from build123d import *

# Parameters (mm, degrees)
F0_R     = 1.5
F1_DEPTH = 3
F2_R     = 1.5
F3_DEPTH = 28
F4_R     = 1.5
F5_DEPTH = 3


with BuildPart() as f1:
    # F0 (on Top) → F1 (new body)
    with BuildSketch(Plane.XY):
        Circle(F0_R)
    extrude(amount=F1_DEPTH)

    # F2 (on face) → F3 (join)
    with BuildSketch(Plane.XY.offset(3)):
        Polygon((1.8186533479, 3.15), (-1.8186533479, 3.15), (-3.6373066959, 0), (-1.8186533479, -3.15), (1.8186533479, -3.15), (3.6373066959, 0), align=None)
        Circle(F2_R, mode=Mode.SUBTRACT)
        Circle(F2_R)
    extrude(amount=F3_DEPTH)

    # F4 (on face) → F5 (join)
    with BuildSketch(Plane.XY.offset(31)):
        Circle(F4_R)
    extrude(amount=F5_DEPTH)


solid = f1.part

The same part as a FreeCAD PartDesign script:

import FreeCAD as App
import Part
import Sketcher
Q = App.Units.Quantity


def add_polygon(sketch, points):
    """Adds a closed chain of lines whose ends are joined by coincident constraints."""
    first, n = sketch.GeometryCount, len(points)
    for a, b in zip(points, points[1:] + points[:1]):
        sketch.addGeometry(Part.LineSegment(App.Vector(*a, 0), App.Vector(*b, 0)), False)
    for i in range(n):
        sketch.addConstraint(Sketcher.Constraint("Coincident", first + i, 2, first + (i + 1) % n, 1))

doc = App.newDocument("Part")
body = doc.addObject("PartDesign::Body", "Body")

# Sketch on XY plane
sketch1 = body.newObject("Sketcher::SketchObject", "Sketch")
sketch1.AttachmentSupport = (doc.getObject("XY_Plane"), [""])
sketch1.MapMode = "FlatFace"
sketch1.addGeometry(Part.Circle(App.Vector(0, 0, 0), App.Vector(0, 0, 1), 1.5), False)
sketch1.addConstraint([
    Sketcher.Constraint("Coincident", 0, 3, -1, 1),
    Sketcher.Constraint("Diameter", 0, Q("3 mm")),
])
pad1 = body.newObject("PartDesign::Pad", "Pad")
pad1.Profile = sketch1
pad1.Length = 3

# Sketch on XY plane
sketch2 = body.newObject("Sketcher::SketchObject", "Sketch001")
sketch2.AttachmentSupport = (doc.getObject("XY_Plane"), [""])
sketch2.MapMode = "FlatFace"
sketch2.AttachmentOffset = App.Placement(App.Vector(0, 0, 3), App.Rotation())
add_polygon(sketch2, [(1.8, 3.1), (-1.8, 3.1), (-3.6, 0), (-1.8, -3.1), (1.8, -3.1), (3.6, 0)])  # lines 0-5
sketch2.addConstraint([
    Sketcher.Constraint("Horizontal", 0),
    Sketcher.Constraint("Horizontal", 3),
    Sketcher.Constraint("Symmetric", 0, 2, 3, 2, -1, 1),
    Sketcher.Constraint("Symmetric", 1, 2, 4, 2, -1, 1),
    Sketcher.Constraint("PointOnObject", 1, 2, -1),
    Sketcher.Constraint("Parallel", 2, 5),
    Sketcher.Constraint("Vertical", 0, 2, 2, 2),
    Sketcher.Constraint("Angle", 1, Q("-120 deg")),
    Sketcher.Constraint("DistanceY", 2, 2, 0, 2, Q("6.3 mm")),
    Sketcher.Constraint("DistanceX", 0, 2, 0, 1, Q("3.637307 mm")),
])
pad2 = body.newObject("PartDesign::Pad", "Pad001")
pad2.Profile = sketch2
pad2.Length = 28

# Sketch on XY plane
sketch3 = body.newObject("Sketcher::SketchObject", "Sketch002")
sketch3.AttachmentSupport = (doc.getObject("XY_Plane"), [""])
sketch3.MapMode = "FlatFace"
sketch3.AttachmentOffset = App.Placement(App.Vector(0, 0, 31), App.Rotation())
sketch3.addGeometry(Part.Circle(App.Vector(0, 0, 0), App.Vector(0, 0, 1), 1.5), False)
sketch3.addConstraint([
    Sketcher.Constraint("Coincident", 0, 3, -1, 1),
    Sketcher.Constraint("Diameter", 0, Q("3 mm")),
])
pad3 = body.newObject("PartDesign::Pad", "Pad002")
pad3.Profile = sketch3
pad3.Length = 3

doc.recompute()
